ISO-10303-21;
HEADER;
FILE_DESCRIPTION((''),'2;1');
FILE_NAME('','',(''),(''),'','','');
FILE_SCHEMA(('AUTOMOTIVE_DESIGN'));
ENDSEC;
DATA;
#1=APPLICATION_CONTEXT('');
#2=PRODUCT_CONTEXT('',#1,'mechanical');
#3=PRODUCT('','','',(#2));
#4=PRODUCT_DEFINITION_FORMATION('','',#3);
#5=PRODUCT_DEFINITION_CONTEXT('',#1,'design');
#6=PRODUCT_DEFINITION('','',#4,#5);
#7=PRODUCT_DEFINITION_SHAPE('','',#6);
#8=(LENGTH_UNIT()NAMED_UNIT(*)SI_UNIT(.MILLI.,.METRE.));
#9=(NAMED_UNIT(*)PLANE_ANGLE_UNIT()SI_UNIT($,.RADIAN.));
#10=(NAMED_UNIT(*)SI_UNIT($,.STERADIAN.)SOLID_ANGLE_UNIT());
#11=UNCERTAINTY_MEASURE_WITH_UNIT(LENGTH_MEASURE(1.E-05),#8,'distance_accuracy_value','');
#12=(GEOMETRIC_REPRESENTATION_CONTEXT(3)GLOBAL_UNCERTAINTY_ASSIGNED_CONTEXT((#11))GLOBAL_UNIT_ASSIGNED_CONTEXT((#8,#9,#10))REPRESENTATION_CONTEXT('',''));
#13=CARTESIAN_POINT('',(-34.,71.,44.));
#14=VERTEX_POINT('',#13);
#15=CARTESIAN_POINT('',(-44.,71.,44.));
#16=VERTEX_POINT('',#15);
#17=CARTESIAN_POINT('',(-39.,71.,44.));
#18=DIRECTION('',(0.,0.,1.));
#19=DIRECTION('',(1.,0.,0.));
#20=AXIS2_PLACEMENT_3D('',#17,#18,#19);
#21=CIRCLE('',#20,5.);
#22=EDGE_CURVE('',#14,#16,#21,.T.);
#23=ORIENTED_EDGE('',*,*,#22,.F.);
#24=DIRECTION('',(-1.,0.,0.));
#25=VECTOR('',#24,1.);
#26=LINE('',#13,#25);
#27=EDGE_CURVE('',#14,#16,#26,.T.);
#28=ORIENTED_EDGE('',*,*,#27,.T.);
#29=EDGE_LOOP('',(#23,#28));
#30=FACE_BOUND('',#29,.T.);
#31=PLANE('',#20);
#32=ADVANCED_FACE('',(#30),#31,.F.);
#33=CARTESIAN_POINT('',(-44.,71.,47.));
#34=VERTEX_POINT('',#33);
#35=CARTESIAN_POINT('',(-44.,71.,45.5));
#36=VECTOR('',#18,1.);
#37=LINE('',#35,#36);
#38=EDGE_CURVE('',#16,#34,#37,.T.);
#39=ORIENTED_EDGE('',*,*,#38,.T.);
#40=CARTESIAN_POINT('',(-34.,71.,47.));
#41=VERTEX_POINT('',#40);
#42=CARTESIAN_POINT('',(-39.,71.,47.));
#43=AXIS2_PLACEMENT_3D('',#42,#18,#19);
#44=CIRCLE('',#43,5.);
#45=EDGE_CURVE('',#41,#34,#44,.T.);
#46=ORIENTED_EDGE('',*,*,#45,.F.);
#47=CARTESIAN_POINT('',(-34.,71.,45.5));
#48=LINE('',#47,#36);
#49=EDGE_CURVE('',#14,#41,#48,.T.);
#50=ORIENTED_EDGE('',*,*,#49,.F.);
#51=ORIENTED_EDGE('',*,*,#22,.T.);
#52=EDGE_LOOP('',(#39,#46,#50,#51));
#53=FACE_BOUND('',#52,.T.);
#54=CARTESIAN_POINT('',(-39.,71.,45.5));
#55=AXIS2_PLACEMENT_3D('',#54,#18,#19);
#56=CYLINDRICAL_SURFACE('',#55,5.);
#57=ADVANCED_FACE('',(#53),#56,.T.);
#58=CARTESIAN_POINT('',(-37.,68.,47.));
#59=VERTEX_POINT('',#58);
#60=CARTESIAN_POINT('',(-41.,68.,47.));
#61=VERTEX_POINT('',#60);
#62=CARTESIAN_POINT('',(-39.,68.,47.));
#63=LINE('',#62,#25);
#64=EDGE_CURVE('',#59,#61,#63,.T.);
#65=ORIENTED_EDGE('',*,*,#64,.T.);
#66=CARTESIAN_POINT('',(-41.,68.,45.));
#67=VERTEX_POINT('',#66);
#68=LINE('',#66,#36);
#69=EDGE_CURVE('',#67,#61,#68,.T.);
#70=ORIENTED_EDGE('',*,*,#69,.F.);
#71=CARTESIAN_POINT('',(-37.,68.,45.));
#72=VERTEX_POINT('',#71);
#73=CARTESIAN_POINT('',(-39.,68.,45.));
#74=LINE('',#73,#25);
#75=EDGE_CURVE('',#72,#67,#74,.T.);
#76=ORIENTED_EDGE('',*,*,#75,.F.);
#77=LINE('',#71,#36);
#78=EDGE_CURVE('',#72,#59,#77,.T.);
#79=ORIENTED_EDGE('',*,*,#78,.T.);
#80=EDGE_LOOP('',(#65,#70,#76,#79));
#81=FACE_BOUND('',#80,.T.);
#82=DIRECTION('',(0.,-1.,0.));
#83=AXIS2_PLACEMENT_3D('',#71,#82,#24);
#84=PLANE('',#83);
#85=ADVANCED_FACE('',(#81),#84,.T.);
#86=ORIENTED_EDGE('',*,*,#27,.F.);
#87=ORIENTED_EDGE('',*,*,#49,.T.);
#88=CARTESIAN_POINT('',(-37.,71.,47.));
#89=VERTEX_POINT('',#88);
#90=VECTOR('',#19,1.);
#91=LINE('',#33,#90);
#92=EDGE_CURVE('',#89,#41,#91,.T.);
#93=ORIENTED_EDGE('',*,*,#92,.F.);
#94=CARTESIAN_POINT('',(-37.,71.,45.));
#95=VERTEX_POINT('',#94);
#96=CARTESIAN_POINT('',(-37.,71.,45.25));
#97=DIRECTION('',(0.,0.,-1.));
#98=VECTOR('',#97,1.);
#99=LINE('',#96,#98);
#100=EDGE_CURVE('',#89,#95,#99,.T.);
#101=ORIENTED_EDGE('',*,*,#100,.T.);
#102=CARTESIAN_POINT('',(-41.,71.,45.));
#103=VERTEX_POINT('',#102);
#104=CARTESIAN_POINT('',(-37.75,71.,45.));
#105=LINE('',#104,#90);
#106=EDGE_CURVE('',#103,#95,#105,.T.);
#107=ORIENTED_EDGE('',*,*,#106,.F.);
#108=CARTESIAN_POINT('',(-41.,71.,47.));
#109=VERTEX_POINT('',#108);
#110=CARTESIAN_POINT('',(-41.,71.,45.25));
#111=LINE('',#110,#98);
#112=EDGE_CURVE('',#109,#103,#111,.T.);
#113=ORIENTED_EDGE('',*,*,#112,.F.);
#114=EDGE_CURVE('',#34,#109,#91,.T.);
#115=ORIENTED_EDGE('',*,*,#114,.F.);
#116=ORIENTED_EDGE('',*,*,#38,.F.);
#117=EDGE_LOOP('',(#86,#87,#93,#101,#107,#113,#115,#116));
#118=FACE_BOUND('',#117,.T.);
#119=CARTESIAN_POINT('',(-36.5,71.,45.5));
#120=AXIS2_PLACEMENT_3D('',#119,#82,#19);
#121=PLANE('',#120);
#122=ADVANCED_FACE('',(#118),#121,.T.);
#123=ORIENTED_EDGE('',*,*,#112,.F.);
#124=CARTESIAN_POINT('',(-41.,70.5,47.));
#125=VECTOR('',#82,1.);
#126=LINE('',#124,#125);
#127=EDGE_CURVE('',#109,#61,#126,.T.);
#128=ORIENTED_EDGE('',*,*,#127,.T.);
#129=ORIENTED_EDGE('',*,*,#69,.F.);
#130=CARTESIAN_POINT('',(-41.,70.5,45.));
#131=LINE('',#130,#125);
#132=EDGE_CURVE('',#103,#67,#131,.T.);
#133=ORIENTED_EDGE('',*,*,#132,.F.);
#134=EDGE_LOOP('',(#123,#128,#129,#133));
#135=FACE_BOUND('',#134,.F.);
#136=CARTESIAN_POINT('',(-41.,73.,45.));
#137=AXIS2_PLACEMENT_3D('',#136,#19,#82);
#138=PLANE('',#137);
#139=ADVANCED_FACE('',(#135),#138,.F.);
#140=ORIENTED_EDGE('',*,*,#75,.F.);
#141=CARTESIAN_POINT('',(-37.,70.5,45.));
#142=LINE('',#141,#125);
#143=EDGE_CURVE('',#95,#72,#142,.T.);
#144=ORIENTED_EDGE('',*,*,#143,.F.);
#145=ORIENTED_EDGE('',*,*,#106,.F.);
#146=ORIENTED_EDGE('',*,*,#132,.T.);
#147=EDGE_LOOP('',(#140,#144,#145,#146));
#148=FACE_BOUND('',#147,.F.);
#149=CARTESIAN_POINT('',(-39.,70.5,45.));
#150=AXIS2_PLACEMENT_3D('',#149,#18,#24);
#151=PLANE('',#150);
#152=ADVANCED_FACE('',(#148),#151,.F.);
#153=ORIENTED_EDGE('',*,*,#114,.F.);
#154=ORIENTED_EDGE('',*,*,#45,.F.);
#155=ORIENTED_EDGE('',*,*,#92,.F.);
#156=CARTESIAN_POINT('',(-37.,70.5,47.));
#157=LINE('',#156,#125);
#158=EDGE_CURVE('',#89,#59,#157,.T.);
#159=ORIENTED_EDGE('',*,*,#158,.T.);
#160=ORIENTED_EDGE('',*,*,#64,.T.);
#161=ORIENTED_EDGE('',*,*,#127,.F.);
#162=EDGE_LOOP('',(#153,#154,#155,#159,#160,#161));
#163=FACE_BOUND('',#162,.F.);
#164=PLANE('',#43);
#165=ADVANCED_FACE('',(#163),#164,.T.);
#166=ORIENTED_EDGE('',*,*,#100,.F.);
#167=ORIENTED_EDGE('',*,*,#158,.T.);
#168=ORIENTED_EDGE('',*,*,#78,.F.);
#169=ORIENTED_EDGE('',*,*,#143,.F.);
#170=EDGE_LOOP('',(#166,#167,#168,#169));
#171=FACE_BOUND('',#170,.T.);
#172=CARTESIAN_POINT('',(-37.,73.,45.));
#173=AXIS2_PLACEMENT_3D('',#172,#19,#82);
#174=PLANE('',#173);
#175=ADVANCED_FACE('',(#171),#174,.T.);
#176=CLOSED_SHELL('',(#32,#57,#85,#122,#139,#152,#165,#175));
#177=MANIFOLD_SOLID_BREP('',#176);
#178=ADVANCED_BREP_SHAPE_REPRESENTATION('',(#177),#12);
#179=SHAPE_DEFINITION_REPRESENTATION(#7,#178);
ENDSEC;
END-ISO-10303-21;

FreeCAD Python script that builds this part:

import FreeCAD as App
import Part
import Sketcher
from FreeCAD import Vector


def add_polygon(sketch, points):
    """Adds a closed chain of lines whose ends are joined by coincident constraints."""
    first, n = sketch.GeometryCount, len(points)
    for a, b in zip(points, points[1:] + points[:1]):
        sketch.addGeometry(Part.LineSegment(App.Vector(*a, 0), App.Vector(*b, 0)), False)
    for i in range(n):
        sketch.addConstraint(Sketcher.Constraint("Coincident", first + i, 2, first + (i + 1) % n, 1))

doc = App.newDocument("Part")
body = doc.addObject("PartDesign::Body", "Body")

sketch1 = doc.addObject("Sketcher::SketchObject", "Sketch")
body.addObject(sketch1)
sketch1.AttachmentSupport = (doc.XZ_Plane, [""])
sketch1.MapMode = "FlatFace"
sketch1.AttachmentOffset = App.Placement(Vector(0, 0, -48), App.Rotation())
add_polygon(sketch1, [(-39, 47), (-39, 44), (-44, 44), (-44, 47)])
sketch1.addGeometry(Part.LineSegment(Vector(-39, 44, 0), Vector(-39, 47, 0)), True)
sketch1.addConstraint([
    Sketcher.Constraint("Vertical", 0),
    Sketcher.Constraint("Horizontal", 1),
    Sketcher.Constraint("Vertical", 2),
    Sketcher.Constraint("Horizontal", 3),
    Sketcher.Constraint("Vertical", 4),
    Sketcher.Constraint("Coincident", 4, 1, 0, 2),
    Sketcher.Constraint("Horizontal", 2, 2, 4, 2),
    Sketcher.Constraint("DistanceX", 1, 2, 1, 1, 5.0),
    Sketcher.Constraint("DistanceY", 0, 2, 0, 1, 3.0),
    Sketcher.Constraint("DistanceX", 0, 2, -1, 1, 39.0),
    Sketcher.Constraint("DistanceY", -1, 1, 0, 2, 44.0),
])
revolution = doc.addObject("PartDesign::Revolution", "Revolution")
body.addObject(revolution)
revolution.Profile = sketch1
revolution.ReferenceAxis = (sketch1, ["Axis0"])
revolution.Angle = 180
body2 = doc.addObject("PartDesign::Body", "Body001")

sketch2 = doc.addObject("Sketcher::SketchObject", "Sketch001")
body2.addObject(sketch2)
sketch2.AttachmentSupport = (doc.getObject("XY_Plane001"), [""])
sketch2.MapMode = "FlatFace"
sketch2.AttachmentOffset = App.Placement(Vector(0, 0, 45), App.Rotation())
add_polygon(sketch2, [(-41, 51), (-41, 46), (-37, 46), (-37, 51)])
sketch2.addConstraint([
    Sketcher.Constraint("Vertical", 0),
    Sketcher.Constraint("Horizontal", 1),
    Sketcher.Constraint("Vertical", 2),
    Sketcher.Constraint("Horizontal", 3),
    Sketcher.Constraint("DistanceX", 1, 1, 1, 2, 4.0),
    Sketcher.Constraint("DistanceY", 0, 2, 0, 1, 5.0),
    Sketcher.Constraint("DistanceX", 0, 2, -1, 1, 41.0),
    Sketcher.Constraint("DistanceY", -1, 1, 0, 2, 46.0),
])
pad1 = doc.addObject("PartDesign::Pad", "Pad")
body2.addObject(pad1)
pad1.Profile = sketch2
pad1.Length = 2
doc.recompute()

boolean = doc.addObject("PartDesign::Boolean", "Boolean")
body2.addObject(boolean)
boolean.Type = "Fuse"
boolean.addObjects([body])
body3 = doc.addObject("PartDesign::Body", "Body002")
doc.recompute()

body2.Placement = App.Placement(Vector(-78, 119, 0), App.Rotation(Vector(0, 0, 1), 180))
boolean2 = doc.addObject("PartDesign::Boolean", "Boolean001")
body3.addObject(boolean2)
boolean2.Type = "Fuse"
boolean2.addObjects([body2])

doc.recompute()
